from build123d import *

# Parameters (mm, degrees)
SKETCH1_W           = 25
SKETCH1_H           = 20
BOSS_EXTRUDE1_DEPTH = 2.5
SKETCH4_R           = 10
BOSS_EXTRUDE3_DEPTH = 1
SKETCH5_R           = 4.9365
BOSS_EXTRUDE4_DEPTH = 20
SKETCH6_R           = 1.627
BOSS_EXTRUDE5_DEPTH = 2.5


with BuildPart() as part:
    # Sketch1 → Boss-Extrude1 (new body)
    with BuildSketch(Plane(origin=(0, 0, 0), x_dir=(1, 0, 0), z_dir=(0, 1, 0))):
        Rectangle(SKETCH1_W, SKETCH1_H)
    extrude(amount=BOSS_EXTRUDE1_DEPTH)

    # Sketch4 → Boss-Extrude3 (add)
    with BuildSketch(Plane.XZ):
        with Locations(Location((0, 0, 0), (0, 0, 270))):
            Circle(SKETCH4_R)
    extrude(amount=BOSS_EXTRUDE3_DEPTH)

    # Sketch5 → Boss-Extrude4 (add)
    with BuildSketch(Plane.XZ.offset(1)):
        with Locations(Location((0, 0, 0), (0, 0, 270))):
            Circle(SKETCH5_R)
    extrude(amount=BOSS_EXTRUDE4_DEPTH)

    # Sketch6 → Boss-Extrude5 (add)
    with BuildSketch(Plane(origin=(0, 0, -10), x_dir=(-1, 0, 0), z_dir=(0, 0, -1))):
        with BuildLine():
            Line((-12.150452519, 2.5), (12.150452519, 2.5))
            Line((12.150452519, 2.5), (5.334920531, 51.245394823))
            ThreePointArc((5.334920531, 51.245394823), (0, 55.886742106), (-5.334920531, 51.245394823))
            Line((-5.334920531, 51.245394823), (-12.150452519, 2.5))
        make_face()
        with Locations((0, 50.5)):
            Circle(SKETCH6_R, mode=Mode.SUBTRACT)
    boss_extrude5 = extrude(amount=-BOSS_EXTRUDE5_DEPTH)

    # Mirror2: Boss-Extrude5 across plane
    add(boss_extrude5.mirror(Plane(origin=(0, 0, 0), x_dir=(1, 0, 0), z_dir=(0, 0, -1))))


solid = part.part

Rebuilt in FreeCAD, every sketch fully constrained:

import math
import FreeCAD as App
import Part
import Sketcher


def add_polygon(sketch, points):
    """Adds a closed chain of lines whose ends are joined by coincident constraints."""
    first, n = sketch.GeometryCount, len(points)
    for a, b in zip(points, points[1:] + points[:1]):
        sketch.addGeometry(Part.LineSegment(App.Vector(*a, 0), App.Vector(*b, 0)), False)
    for i in range(n):
        sketch.addConstraint(Sketcher.Constraint("Coincident", first + i, 2, first + (i + 1) % n, 1))

doc = App.newDocument("Part")
body = doc.addObject("PartDesign::Body", "Body")

# Sketch on XZ plane
sketch1 = doc.addObject("Sketcher::SketchObject", "Sketch")
body.addObject(sketch1)
sketch1.AttachmentSupport = (doc.XZ_Plane, [""])
sketch1.MapMode = "FlatFace"
add_polygon(sketch1, [(-12, -10), (-12, 10), (12, 10), (12, -10)])  # lines 0-3
sketch1.addConstraint(Sketcher.Constraint("Vertical", 0))
sketch1.addConstraint(Sketcher.Constraint("Horizontal", 1))
sketch1.addConstraint(Sketcher.Constraint("Vertical", 2))
sketch1.addConstraint(Sketcher.Constraint("Horizontal", 3))
sketch1.addConstraint(Sketcher.Constraint("Symmetric", 0, 2, 2, 2, -1, 1))
sketch1.addConstraint(Sketcher.Constraint("DistanceX", 1, 1, 1, 2, 25.0))
sketch1.addConstraint(Sketcher.Constraint("DistanceY", 0, 1, 0, 2, 20.0))
pad1 = doc.addObject("PartDesign::Pad", "Pad")
body.addObject(pad1)
pad1.Profile = sketch1
pad1.Length = 2.5
pad1.Reversed = True

# Sketch on XZ plane
sketch2 = doc.addObject("Sketcher::SketchObject", "Sketch001")
body.addObject(sketch2)
sketch2.AttachmentSupport = (doc.XZ_Plane, [""])
sketch2.MapMode = "FlatFace"
sketch2.addGeometry(Part.Circle(App.Vector(0, 0, 0), App.Vector(0, 0, 1), 10), False)
sketch2.addConstraint(Sketcher.Constraint("Coincident", 0, 3, -1, 1))
sketch2.addConstraint(Sketcher.Constraint("Diameter", 0, 20.0))
pad2 = doc.addObject("PartDesign::Pad", "Pad001")
body.addObject(pad2)
pad2.Profile = sketch2
pad2.Length = 1

# Sketch on XZ plane
sketch3 = doc.addObject("Sketcher::SketchObject", "Sketch002")
body.addObject(sketch3)
sketch3.AttachmentSupport = (doc.XZ_Plane, [""])
sketch3.MapMode = "FlatFace"
sketch3.AttachmentOffset = App.Placement(App.Vector(0, 0, 1), App.Rotation())
sketch3.addGeometry(Part.Circle(App.Vector(0, 0, 0), App.Vector(0, 0, 1), 4.9), False)
sketch3.addConstraint(Sketcher.Constraint("Coincident", 0, 3, -1, 1))
sketch3.addConstraint(Sketcher.Constraint("Diameter", 0, 9.873))
pad3 = doc.addObject("PartDesign::Pad", "Pad002")
body.addObject(pad3)
pad3.Profile = sketch3
pad3.Length = 20

# Sketch on XY plane
sketch4 = doc.addObject("Sketcher::SketchObject", "Sketch003")
body.addObject(sketch4)
sketch4.AttachmentSupport = (doc.XY_Plane, [""])
sketch4.MapMode = "FlatFace"
sketch4.AttachmentOffset = App.Placement(App.Vector(0, 0, -10), App.Rotation())
sketch4.addGeometry(Part.LineSegment(App.Vector(12.2, 2.5, 0), App.Vector(-12.2, 2.5, 0)), False)
sketch4.addGeometry(Part.LineSegment(App.Vector(-12.2, 2.5, 0), App.Vector(-5.3, 51.2, 0)), False)
sketch4.addGeometry(Part.ArcOfCircle(Part.Circle(App.Vector(0, 50.5, 0), App.Vector(0, 0, 1), 5.4), math.radians(8), math.radians(172)), False)
sketch4.addGeometry(Part.LineSegment(App.Vector(5.3, 51.2, 0), App.Vector(12.2, 2.5, 0)), False)
sketch4.addGeometry(Part.Circle(App.Vector(0, 50.5, 0), App.Vector(0, 0, 1), 1.6), False)
sketch4.addConstraint(Sketcher.Constraint("Coincident", 0, 2, 1, 1))
sketch4.addConstraint(Sketcher.Constraint("Coincident", 1, 2, 2, 2))
sketch4.addConstraint(Sketcher.Constraint("Coincident", 2, 1, 3, 1))
sketch4.addConstraint(Sketcher.Constraint("Coincident", 3, 2, 0, 1))
sketch4.addConstraint(Sketcher.Constraint("Horizontal", 0))
sketch4.addConstraint(Sketcher.Constraint("Coincident", 4, 3, 2, 3))
sketch4.addConstraint(Sketcher.Constraint("Symmetric", 1, 2, 2, 1, -2))
sketch4.addConstraint(Sketcher.Constraint("Equal", 1, 3))
sketch4.addConstraint(Sketcher.Constraint("Diameter", 4, 3.254))
sketch4.addConstraint(Sketcher.Constraint("DistanceY", 0, 2, 2, 3, 48.0))
sketch4.addConstraint(Sketcher.Constraint("DistanceY", -1, 1, 2, 3, 50.5))
sketch4.addConstraint(Sketcher.Constraint("Radius", 2, 5.386742))
sketch4.addConstraint(Sketcher.Constraint("Distance", 1, 49.219559))
sketch4.addConstraint(Sketcher.Constraint("DistanceX", 0, 2, 0, 1, 24.300905))
pad4 = doc.addObject("PartDesign::Pad", "Pad003")
body.addObject(pad4)
pad4.Profile = sketch4
pad4.Length = 2.5
doc.recompute()

mirrored = doc.addObject("PartDesign::Mirrored", "Mirrored")
body.addObject(mirrored)
mirrored.Originals = [pad4]
mirrored.MirrorPlane = (doc.XY_Plane, [""])
body.Tip = mirrored

doc.recompute()
